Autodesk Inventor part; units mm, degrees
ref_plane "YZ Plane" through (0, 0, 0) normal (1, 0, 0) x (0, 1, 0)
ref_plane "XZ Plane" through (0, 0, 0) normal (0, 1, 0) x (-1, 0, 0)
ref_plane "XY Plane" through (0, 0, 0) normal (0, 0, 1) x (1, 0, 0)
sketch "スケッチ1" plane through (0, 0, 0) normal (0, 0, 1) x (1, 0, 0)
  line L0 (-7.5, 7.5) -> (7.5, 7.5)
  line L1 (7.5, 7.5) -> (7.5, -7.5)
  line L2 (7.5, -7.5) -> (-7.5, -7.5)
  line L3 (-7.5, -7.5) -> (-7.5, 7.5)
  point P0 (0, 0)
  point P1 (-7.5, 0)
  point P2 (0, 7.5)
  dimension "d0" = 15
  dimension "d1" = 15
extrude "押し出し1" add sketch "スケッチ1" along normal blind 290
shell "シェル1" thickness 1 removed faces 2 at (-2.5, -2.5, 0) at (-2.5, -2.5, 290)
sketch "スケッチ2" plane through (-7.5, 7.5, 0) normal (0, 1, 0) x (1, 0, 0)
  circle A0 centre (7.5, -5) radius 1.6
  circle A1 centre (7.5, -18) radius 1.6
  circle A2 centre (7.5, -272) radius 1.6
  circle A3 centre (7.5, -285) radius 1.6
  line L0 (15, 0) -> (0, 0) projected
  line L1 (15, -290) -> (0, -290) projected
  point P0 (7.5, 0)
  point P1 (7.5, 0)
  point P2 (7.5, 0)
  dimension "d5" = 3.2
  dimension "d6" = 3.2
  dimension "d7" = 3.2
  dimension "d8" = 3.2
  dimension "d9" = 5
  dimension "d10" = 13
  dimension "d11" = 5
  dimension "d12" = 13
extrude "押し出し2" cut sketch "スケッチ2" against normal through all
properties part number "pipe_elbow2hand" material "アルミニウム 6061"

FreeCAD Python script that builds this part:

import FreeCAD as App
import Part
import Sketcher
from FreeCAD import Vector


def faces_at(feature, points):
    """Names of the faces that lie closest to the given points."""
    faces = feature.Shape.Faces
    near = lambda p: min(range(len(faces)), key=lambda i: faces[i].distToShape(Part.Vertex(*p))[0])
    return sorted({f"Face{near(p) + 1}" for p in points})

doc = App.newDocument("Part")
params = doc.addObject("Spreadsheet::Sheet", "Params")
for row, (alias, value) in enumerate([
    ("sketch1_width", "15 mm"),
    ("pad1_length", "290 mm"),
    ("thickness_wall", "1 mm"),
    ("sketch2_diameter", "3.2 mm"),
], start=1):
    params.set(f"A{row}", alias)
    params.set(f"B{row}", "=" + value)
    params.setAlias(f"B{row}", alias)

body = doc.addObject("PartDesign::Body", "Body")

# Sketch on XY plane
sketch1 = body.newObject("Sketcher::SketchObject", "Sketch")
sketch1.AttachmentSupport = (doc.getObject("XY_Plane"), [""])
sketch1.MapMode = "FlatFace"
sketch1.addGeometry(Part.LineSegment(Vector(8, 8, 0), Vector(-8, 8, 0)), False)
sketch1.addGeometry(Part.LineSegment(Vector(-8, 8, 0), Vector(-8, -8, 0)), False)
sketch1.addGeometry(Part.LineSegment(Vector(-8, -8, 0), Vector(8, -8, 0)), False)
sketch1.addGeometry(Part.LineSegment(Vector(8, -8, 0), Vector(8, 8, 0)), False)
sketch1.addConstraint(Sketcher.Constraint("Coincident", 0, 2, 1, 1))
sketch1.addConstraint(Sketcher.Constraint("Coincident", 1, 2, 2, 1))
sketch1.addConstraint(Sketcher.Constraint("Coincident", 2, 2, 3, 1))
sketch1.addConstraint(Sketcher.Constraint("Coincident", 3, 2, 0, 1))
sketch1.addConstraint(Sketcher.Constraint("Horizontal", 0))
sketch1.addConstraint(Sketcher.Constraint("Vertical", 1))
sketch1.addConstraint(Sketcher.Constraint("Horizontal", 2))
sketch1.addConstraint(Sketcher.Constraint("Vertical", 3))
sketch1.addConstraint(Sketcher.Constraint("Symmetric", 0, 2, 2, 2, -1, 1))
sketch1.addConstraint(Sketcher.Constraint("Equal", 2, 1))
sketch1.addConstraint(Sketcher.Constraint("DistanceX", 0, 2, 0, 1, 15.0))
sketch1.setExpression("Constraints[10]", "Params.sketch1_width")
pad1 = body.newObject("PartDesign::Pad", "Pad")
pad1.Profile = sketch1
pad1.setExpression("Length", "Params.pad1_length")
doc.recompute()

thickness = body.newObject("PartDesign::Thickness", "Thickness")
thickness.Base = (pad1, faces_at(pad1, [(-2.5, -2.5, 0), (-2.5, -2.5, 290)]))
thickness.setExpression("Value", "Params.thickness_wall")
thickness.Reversed = True
thickness.Join = "Intersection"

# Sketch on XZ plane
sketch2 = body.newObject("Sketcher::SketchObject", "Sketch001")
sketch2.AttachmentSupport = (doc.getObject("XZ_Plane"), [""])
sketch2.MapMode = "FlatFace"
sketch2.AttachmentOffset = App.Placement(Vector(0, 0, -7.5), App.Rotation())
sketch2.addGeometry(Part.Circle(Vector(0, 5, 0), Vector(0, 0, 1), 1.6), False)
sketch2.addGeometry(Part.Circle(Vector(0, 18, 0), Vector(0, 0, 1), 1.6), False)
sketch2.addGeometry(Part.Circle(Vector(0, 272, 0), Vector(0, 0, 1), 1.6), False)
sketch2.addGeometry(Part.Circle(Vector(0, 285, 0), Vector(0, 0, 1), 1.6), False)
sketch2.addConstraint(Sketcher.Constraint("Equal", 0, 1))
sketch2.addConstraint(Sketcher.Constraint("Equal", 1, 2))
sketch2.addConstraint(Sketcher.Constraint("Equal", 2, 3))
sketch2.addConstraint(Sketcher.Constraint("PointOnObject", 0, 3, -2))
sketch2.addConstraint(Sketcher.Constraint("PointOnObject", 1, 3, -2))
sketch2.addConstraint(Sketcher.Constraint("PointOnObject", 2, 3, -2))
sketch2.addConstraint(Sketcher.Constraint("PointOnObject", 3, 3, -2))
sketch2.addConstraint(Sketcher.Constraint("Diameter", 0, 3.2))
sketch2.addConstraint(Sketcher.Constraint("DistanceY", -1, 1, 0, 3, 5.0))
sketch2.addConstraint(Sketcher.Constraint("DistanceY", 0, 3, 1, 3, 13.0))
sketch2.addConstraint(Sketcher.Constraint("DistanceY", 2, 3, 3, 3, 13.0))
sketch2.addConstraint(Sketcher.Constraint("DistanceY", -1, 1, 2, 3, 272.0))
sketch2.setExpression("Constraints[7]", "Params.sketch2_diameter")
pocket1 = body.newObject("PartDesign::Pocket", "Pocket")
pocket1.Profile = sketch2
pocket1.Type = "ThroughAll"
pocket1.Reversed = True

doc.recompute()
